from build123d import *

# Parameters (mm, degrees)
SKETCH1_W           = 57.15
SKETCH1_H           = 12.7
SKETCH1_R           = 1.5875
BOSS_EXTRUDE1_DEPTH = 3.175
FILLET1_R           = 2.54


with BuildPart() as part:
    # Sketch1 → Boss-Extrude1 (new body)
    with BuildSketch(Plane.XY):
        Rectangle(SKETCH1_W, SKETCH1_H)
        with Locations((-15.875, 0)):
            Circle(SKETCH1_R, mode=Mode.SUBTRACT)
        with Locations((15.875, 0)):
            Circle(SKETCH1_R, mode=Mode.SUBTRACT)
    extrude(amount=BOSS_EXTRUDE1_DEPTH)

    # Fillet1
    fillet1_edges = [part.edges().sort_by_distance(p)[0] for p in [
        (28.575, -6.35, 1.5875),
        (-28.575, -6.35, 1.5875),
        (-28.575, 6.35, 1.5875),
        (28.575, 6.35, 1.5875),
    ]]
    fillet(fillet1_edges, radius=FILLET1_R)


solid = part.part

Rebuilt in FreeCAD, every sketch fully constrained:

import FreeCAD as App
import Part
import Sketcher

V = App.Vector
Q = App.Units.Quantity


def edges_at(feature, points):
    """Names of the edges that pass closest to the given points."""
    edges = feature.Shape.Edges
    near = lambda p: min(range(len(edges)), key=lambda i: edges[i].distToShape(Part.Vertex(*p))[0])
    return sorted({f"Edge{near(p) + 1}" for p in points})

doc = App.newDocument("Part")
body = doc.addObject("PartDesign::Body", "Body")

sketch1 = body.newObject("Sketcher::SketchObject", "Sketch")
sketch1.AttachmentSupport = (doc.getObject("XY_Plane"), [""])
sketch1.MapMode = "FlatFace"
sketch1.addGeometry([
    Part.LineSegment(V(-28.6, 6.3, 0), V(-28.6, -6.3, 0)),
    Part.LineSegment(V(-28.6, -6.3, 0), V(28.6, -6.3, 0)),
    Part.LineSegment(V(28.6, -6.3, 0), V(28.6, 6.3, 0)),
    Part.LineSegment(V(28.6, 6.3, 0), V(-28.6, 6.3, 0)),
    Part.Circle(V(-15.9, 0, 0), V(0, 0, 1), 1.6),
    Part.Circle(V(15.9, 0, 0), V(0, 0, 1), 1.6),
], False)
sketch1.addConstraint([
    Sketcher.Constraint("Coincident", 0, 2, 1, 1),
    Sketcher.Constraint("Coincident", 1, 2, 2, 1),
    Sketcher.Constraint("Coincident", 2, 2, 3, 1),
    Sketcher.Constraint("Coincident", 3, 2, 0, 1),
    Sketcher.Constraint("Vertical", 0),
    Sketcher.Constraint("Horizontal", 1),
    Sketcher.Constraint("Vertical", 2),
    Sketcher.Constraint("Horizontal", 3),
    Sketcher.Constraint("Equal", 4, 5),
    Sketcher.Constraint("Symmetric", 4, 3, 5, 3, -1, 1),
    Sketcher.Constraint("Symmetric", 0, 2, 2, 2, -1, 1),
    Sketcher.Constraint("PointOnObject", 4, 3, -1),
    Sketcher.Constraint("Diameter", 4, Q("0.125 in")),
    Sketcher.Constraint("DistanceY", 0, 2, 0, 1, Q("0.5 in")),
    Sketcher.Constraint("DistanceX", 1, 1, 1, 2, Q("2.25 in")),
    Sketcher.Constraint("DistanceX", 0, 2, 4, 3, Q("0.5 in")),
])
pad1 = body.newObject("PartDesign::Pad", "Pad")
pad1.Profile = sketch1
pad1.Length = Q("0.125 in")
doc.recompute()

fillet = body.newObject("PartDesign::Fillet", "Fillet")
fillet.Base = (pad1, edges_at(pad1, [
    (28.575, -6.35, 1.587),
    (-28.575, -6.35, 1.587),
    (-28.575, 6.35, 1.587),
    (28.575, 6.35, 1.587),
]))
fillet.Radius = Q("0.1 in")

doc.recompute()
